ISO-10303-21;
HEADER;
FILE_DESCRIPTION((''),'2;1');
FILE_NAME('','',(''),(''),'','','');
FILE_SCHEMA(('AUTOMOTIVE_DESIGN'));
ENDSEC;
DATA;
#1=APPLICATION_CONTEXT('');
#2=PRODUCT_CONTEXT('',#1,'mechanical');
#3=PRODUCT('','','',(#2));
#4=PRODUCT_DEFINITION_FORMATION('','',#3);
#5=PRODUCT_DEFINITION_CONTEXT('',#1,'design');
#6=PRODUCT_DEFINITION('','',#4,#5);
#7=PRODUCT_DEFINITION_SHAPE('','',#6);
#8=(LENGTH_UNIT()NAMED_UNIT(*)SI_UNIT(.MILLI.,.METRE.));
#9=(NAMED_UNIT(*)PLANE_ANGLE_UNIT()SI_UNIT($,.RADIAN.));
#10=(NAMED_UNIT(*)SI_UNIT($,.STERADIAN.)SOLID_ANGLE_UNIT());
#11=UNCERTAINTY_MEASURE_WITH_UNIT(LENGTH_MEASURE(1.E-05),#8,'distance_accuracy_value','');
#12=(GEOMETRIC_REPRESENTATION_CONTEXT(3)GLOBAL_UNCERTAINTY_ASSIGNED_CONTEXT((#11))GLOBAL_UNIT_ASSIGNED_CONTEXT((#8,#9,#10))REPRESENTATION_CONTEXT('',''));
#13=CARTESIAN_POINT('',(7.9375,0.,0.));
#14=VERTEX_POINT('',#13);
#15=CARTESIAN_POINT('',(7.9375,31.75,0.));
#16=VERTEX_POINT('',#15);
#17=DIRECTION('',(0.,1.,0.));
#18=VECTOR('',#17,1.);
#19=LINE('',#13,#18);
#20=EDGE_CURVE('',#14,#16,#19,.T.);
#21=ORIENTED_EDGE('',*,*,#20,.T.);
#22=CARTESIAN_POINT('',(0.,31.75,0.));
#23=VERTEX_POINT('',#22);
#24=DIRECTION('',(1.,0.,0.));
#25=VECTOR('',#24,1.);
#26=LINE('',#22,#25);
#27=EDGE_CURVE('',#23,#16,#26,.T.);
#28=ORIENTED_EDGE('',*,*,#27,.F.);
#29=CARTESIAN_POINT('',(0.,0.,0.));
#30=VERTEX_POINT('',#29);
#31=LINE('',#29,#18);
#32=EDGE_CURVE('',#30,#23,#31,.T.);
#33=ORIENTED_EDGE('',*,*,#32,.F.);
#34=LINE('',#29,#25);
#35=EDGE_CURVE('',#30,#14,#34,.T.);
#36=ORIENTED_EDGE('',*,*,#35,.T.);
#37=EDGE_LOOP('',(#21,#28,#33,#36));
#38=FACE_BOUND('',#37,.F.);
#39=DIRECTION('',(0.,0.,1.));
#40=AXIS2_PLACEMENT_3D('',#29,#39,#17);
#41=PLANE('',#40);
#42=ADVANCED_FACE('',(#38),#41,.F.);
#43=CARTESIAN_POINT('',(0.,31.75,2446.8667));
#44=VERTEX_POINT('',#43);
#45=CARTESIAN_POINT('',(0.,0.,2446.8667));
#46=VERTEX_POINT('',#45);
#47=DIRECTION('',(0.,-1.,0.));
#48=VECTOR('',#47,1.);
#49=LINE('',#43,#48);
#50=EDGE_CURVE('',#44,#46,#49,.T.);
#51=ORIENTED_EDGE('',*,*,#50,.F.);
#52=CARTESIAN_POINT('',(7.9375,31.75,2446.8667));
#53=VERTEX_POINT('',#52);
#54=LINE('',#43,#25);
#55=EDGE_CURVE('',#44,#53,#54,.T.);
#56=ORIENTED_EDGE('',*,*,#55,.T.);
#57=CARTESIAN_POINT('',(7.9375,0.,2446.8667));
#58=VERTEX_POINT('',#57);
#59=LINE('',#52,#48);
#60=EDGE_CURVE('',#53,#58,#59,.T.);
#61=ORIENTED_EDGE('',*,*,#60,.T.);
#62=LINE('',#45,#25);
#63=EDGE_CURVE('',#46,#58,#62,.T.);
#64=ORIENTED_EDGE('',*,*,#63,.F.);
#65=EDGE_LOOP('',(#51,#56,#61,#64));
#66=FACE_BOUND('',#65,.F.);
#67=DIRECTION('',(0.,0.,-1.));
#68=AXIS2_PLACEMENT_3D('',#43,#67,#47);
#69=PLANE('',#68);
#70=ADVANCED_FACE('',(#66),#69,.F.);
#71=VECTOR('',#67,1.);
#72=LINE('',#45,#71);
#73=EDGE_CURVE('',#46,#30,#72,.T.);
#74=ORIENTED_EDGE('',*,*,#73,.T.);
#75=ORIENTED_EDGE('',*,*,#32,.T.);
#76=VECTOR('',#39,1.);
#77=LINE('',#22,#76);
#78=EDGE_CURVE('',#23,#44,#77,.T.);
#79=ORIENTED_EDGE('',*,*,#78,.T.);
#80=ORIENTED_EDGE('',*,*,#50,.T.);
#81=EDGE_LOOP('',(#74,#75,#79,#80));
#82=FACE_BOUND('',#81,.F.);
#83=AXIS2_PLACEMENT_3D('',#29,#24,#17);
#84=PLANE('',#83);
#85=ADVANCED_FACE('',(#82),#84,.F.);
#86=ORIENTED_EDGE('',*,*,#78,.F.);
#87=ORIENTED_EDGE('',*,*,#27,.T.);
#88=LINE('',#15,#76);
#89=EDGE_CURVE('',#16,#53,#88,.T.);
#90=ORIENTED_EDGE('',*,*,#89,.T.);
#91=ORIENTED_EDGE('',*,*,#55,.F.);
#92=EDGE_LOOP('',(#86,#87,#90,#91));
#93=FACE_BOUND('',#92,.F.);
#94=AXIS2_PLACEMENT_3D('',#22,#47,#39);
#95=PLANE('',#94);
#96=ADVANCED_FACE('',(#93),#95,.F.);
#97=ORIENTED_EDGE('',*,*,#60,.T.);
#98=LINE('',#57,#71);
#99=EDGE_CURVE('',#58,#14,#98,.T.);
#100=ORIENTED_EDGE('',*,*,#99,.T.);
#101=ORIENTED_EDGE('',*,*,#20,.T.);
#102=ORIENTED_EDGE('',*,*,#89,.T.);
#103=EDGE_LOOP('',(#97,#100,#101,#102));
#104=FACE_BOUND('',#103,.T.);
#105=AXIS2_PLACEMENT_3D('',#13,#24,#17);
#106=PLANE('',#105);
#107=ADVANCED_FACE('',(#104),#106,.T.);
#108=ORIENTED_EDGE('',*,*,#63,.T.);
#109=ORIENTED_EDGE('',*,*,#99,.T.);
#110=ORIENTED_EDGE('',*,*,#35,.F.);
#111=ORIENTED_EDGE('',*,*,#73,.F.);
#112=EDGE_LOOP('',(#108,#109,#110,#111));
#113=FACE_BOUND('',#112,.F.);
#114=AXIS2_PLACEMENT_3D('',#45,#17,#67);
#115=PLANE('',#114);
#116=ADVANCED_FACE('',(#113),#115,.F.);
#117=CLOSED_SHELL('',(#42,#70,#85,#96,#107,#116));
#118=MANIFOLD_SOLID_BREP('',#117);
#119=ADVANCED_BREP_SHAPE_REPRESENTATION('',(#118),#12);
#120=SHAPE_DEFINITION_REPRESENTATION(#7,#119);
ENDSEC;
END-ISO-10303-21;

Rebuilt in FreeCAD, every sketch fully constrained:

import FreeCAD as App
import Part
import Sketcher
Q = App.Units.Quantity

doc = App.newDocument("Part")
params = doc.addObject("Spreadsheet::Sheet", "Params")
for row, (alias, value) in enumerate([
    ("sketch1_width", "1.25 in"),
    ("pad1_length", "0.3125 in"),
], start=1):
    params.set(f"A{row}", alias)
    params.set(f"B{row}", "=" + value)
    params.setAlias(f"B{row}", alias)

body = doc.addObject("PartDesign::Body", "Body")

# Sketch on YZ plane
sketch1 = body.newObject("Sketcher::SketchObject", "Sketch")
sketch1.AttachmentSupport = (doc.getObject("YZ_Plane"), [""])
sketch1.MapMode = "FlatFace"
sketch1.addGeometry(Part.LineSegment(App.Vector(0, 2447, 0), App.Vector(0, 0, 0)), False)
sketch1.addGeometry(Part.LineSegment(App.Vector(0, 0, 0), App.Vector(32, 0, 0)), False)
sketch1.addGeometry(Part.LineSegment(App.Vector(32, 0, 0), App.Vector(32, 2447, 0)), False)
sketch1.addGeometry(Part.LineSegment(App.Vector(32, 2447, 0), App.Vector(0, 2447, 0)), False)
sketch1.addConstraint(Sketcher.Constraint("Coincident", 0, 2, 1, 1))
sketch1.addConstraint(Sketcher.Constraint("Coincident", 1, 2, 2, 1))
sketch1.addConstraint(Sketcher.Constraint("Coincident", 2, 2, 3, 1))
sketch1.addConstraint(Sketcher.Constraint("Coincident", 3, 2, 0, 1))
sketch1.addConstraint(Sketcher.Constraint("Vertical", 0))
sketch1.addConstraint(Sketcher.Constraint("Horizontal", 1))
sketch1.addConstraint(Sketcher.Constraint("Vertical", 2))
sketch1.addConstraint(Sketcher.Constraint("Horizontal", 3))
sketch1.addConstraint(Sketcher.Constraint("Coincident", 0, 2, -1, 1))
sketch1.addConstraint(Sketcher.Constraint("DistanceX", 1, 1, 1, 2, Q("1.25 in")))
sketch1.addConstraint(Sketcher.Constraint("DistanceY", 0, 2, 0, 1, 2446.8667))
sketch1.setExpression("Constraints[9]", "Params.sketch1_width")
pad1 = body.newObject("PartDesign::Pad", "Pad")
pad1.Profile = sketch1
pad1.setExpression("Length", "Params.pad1_length")

doc.recompute()
